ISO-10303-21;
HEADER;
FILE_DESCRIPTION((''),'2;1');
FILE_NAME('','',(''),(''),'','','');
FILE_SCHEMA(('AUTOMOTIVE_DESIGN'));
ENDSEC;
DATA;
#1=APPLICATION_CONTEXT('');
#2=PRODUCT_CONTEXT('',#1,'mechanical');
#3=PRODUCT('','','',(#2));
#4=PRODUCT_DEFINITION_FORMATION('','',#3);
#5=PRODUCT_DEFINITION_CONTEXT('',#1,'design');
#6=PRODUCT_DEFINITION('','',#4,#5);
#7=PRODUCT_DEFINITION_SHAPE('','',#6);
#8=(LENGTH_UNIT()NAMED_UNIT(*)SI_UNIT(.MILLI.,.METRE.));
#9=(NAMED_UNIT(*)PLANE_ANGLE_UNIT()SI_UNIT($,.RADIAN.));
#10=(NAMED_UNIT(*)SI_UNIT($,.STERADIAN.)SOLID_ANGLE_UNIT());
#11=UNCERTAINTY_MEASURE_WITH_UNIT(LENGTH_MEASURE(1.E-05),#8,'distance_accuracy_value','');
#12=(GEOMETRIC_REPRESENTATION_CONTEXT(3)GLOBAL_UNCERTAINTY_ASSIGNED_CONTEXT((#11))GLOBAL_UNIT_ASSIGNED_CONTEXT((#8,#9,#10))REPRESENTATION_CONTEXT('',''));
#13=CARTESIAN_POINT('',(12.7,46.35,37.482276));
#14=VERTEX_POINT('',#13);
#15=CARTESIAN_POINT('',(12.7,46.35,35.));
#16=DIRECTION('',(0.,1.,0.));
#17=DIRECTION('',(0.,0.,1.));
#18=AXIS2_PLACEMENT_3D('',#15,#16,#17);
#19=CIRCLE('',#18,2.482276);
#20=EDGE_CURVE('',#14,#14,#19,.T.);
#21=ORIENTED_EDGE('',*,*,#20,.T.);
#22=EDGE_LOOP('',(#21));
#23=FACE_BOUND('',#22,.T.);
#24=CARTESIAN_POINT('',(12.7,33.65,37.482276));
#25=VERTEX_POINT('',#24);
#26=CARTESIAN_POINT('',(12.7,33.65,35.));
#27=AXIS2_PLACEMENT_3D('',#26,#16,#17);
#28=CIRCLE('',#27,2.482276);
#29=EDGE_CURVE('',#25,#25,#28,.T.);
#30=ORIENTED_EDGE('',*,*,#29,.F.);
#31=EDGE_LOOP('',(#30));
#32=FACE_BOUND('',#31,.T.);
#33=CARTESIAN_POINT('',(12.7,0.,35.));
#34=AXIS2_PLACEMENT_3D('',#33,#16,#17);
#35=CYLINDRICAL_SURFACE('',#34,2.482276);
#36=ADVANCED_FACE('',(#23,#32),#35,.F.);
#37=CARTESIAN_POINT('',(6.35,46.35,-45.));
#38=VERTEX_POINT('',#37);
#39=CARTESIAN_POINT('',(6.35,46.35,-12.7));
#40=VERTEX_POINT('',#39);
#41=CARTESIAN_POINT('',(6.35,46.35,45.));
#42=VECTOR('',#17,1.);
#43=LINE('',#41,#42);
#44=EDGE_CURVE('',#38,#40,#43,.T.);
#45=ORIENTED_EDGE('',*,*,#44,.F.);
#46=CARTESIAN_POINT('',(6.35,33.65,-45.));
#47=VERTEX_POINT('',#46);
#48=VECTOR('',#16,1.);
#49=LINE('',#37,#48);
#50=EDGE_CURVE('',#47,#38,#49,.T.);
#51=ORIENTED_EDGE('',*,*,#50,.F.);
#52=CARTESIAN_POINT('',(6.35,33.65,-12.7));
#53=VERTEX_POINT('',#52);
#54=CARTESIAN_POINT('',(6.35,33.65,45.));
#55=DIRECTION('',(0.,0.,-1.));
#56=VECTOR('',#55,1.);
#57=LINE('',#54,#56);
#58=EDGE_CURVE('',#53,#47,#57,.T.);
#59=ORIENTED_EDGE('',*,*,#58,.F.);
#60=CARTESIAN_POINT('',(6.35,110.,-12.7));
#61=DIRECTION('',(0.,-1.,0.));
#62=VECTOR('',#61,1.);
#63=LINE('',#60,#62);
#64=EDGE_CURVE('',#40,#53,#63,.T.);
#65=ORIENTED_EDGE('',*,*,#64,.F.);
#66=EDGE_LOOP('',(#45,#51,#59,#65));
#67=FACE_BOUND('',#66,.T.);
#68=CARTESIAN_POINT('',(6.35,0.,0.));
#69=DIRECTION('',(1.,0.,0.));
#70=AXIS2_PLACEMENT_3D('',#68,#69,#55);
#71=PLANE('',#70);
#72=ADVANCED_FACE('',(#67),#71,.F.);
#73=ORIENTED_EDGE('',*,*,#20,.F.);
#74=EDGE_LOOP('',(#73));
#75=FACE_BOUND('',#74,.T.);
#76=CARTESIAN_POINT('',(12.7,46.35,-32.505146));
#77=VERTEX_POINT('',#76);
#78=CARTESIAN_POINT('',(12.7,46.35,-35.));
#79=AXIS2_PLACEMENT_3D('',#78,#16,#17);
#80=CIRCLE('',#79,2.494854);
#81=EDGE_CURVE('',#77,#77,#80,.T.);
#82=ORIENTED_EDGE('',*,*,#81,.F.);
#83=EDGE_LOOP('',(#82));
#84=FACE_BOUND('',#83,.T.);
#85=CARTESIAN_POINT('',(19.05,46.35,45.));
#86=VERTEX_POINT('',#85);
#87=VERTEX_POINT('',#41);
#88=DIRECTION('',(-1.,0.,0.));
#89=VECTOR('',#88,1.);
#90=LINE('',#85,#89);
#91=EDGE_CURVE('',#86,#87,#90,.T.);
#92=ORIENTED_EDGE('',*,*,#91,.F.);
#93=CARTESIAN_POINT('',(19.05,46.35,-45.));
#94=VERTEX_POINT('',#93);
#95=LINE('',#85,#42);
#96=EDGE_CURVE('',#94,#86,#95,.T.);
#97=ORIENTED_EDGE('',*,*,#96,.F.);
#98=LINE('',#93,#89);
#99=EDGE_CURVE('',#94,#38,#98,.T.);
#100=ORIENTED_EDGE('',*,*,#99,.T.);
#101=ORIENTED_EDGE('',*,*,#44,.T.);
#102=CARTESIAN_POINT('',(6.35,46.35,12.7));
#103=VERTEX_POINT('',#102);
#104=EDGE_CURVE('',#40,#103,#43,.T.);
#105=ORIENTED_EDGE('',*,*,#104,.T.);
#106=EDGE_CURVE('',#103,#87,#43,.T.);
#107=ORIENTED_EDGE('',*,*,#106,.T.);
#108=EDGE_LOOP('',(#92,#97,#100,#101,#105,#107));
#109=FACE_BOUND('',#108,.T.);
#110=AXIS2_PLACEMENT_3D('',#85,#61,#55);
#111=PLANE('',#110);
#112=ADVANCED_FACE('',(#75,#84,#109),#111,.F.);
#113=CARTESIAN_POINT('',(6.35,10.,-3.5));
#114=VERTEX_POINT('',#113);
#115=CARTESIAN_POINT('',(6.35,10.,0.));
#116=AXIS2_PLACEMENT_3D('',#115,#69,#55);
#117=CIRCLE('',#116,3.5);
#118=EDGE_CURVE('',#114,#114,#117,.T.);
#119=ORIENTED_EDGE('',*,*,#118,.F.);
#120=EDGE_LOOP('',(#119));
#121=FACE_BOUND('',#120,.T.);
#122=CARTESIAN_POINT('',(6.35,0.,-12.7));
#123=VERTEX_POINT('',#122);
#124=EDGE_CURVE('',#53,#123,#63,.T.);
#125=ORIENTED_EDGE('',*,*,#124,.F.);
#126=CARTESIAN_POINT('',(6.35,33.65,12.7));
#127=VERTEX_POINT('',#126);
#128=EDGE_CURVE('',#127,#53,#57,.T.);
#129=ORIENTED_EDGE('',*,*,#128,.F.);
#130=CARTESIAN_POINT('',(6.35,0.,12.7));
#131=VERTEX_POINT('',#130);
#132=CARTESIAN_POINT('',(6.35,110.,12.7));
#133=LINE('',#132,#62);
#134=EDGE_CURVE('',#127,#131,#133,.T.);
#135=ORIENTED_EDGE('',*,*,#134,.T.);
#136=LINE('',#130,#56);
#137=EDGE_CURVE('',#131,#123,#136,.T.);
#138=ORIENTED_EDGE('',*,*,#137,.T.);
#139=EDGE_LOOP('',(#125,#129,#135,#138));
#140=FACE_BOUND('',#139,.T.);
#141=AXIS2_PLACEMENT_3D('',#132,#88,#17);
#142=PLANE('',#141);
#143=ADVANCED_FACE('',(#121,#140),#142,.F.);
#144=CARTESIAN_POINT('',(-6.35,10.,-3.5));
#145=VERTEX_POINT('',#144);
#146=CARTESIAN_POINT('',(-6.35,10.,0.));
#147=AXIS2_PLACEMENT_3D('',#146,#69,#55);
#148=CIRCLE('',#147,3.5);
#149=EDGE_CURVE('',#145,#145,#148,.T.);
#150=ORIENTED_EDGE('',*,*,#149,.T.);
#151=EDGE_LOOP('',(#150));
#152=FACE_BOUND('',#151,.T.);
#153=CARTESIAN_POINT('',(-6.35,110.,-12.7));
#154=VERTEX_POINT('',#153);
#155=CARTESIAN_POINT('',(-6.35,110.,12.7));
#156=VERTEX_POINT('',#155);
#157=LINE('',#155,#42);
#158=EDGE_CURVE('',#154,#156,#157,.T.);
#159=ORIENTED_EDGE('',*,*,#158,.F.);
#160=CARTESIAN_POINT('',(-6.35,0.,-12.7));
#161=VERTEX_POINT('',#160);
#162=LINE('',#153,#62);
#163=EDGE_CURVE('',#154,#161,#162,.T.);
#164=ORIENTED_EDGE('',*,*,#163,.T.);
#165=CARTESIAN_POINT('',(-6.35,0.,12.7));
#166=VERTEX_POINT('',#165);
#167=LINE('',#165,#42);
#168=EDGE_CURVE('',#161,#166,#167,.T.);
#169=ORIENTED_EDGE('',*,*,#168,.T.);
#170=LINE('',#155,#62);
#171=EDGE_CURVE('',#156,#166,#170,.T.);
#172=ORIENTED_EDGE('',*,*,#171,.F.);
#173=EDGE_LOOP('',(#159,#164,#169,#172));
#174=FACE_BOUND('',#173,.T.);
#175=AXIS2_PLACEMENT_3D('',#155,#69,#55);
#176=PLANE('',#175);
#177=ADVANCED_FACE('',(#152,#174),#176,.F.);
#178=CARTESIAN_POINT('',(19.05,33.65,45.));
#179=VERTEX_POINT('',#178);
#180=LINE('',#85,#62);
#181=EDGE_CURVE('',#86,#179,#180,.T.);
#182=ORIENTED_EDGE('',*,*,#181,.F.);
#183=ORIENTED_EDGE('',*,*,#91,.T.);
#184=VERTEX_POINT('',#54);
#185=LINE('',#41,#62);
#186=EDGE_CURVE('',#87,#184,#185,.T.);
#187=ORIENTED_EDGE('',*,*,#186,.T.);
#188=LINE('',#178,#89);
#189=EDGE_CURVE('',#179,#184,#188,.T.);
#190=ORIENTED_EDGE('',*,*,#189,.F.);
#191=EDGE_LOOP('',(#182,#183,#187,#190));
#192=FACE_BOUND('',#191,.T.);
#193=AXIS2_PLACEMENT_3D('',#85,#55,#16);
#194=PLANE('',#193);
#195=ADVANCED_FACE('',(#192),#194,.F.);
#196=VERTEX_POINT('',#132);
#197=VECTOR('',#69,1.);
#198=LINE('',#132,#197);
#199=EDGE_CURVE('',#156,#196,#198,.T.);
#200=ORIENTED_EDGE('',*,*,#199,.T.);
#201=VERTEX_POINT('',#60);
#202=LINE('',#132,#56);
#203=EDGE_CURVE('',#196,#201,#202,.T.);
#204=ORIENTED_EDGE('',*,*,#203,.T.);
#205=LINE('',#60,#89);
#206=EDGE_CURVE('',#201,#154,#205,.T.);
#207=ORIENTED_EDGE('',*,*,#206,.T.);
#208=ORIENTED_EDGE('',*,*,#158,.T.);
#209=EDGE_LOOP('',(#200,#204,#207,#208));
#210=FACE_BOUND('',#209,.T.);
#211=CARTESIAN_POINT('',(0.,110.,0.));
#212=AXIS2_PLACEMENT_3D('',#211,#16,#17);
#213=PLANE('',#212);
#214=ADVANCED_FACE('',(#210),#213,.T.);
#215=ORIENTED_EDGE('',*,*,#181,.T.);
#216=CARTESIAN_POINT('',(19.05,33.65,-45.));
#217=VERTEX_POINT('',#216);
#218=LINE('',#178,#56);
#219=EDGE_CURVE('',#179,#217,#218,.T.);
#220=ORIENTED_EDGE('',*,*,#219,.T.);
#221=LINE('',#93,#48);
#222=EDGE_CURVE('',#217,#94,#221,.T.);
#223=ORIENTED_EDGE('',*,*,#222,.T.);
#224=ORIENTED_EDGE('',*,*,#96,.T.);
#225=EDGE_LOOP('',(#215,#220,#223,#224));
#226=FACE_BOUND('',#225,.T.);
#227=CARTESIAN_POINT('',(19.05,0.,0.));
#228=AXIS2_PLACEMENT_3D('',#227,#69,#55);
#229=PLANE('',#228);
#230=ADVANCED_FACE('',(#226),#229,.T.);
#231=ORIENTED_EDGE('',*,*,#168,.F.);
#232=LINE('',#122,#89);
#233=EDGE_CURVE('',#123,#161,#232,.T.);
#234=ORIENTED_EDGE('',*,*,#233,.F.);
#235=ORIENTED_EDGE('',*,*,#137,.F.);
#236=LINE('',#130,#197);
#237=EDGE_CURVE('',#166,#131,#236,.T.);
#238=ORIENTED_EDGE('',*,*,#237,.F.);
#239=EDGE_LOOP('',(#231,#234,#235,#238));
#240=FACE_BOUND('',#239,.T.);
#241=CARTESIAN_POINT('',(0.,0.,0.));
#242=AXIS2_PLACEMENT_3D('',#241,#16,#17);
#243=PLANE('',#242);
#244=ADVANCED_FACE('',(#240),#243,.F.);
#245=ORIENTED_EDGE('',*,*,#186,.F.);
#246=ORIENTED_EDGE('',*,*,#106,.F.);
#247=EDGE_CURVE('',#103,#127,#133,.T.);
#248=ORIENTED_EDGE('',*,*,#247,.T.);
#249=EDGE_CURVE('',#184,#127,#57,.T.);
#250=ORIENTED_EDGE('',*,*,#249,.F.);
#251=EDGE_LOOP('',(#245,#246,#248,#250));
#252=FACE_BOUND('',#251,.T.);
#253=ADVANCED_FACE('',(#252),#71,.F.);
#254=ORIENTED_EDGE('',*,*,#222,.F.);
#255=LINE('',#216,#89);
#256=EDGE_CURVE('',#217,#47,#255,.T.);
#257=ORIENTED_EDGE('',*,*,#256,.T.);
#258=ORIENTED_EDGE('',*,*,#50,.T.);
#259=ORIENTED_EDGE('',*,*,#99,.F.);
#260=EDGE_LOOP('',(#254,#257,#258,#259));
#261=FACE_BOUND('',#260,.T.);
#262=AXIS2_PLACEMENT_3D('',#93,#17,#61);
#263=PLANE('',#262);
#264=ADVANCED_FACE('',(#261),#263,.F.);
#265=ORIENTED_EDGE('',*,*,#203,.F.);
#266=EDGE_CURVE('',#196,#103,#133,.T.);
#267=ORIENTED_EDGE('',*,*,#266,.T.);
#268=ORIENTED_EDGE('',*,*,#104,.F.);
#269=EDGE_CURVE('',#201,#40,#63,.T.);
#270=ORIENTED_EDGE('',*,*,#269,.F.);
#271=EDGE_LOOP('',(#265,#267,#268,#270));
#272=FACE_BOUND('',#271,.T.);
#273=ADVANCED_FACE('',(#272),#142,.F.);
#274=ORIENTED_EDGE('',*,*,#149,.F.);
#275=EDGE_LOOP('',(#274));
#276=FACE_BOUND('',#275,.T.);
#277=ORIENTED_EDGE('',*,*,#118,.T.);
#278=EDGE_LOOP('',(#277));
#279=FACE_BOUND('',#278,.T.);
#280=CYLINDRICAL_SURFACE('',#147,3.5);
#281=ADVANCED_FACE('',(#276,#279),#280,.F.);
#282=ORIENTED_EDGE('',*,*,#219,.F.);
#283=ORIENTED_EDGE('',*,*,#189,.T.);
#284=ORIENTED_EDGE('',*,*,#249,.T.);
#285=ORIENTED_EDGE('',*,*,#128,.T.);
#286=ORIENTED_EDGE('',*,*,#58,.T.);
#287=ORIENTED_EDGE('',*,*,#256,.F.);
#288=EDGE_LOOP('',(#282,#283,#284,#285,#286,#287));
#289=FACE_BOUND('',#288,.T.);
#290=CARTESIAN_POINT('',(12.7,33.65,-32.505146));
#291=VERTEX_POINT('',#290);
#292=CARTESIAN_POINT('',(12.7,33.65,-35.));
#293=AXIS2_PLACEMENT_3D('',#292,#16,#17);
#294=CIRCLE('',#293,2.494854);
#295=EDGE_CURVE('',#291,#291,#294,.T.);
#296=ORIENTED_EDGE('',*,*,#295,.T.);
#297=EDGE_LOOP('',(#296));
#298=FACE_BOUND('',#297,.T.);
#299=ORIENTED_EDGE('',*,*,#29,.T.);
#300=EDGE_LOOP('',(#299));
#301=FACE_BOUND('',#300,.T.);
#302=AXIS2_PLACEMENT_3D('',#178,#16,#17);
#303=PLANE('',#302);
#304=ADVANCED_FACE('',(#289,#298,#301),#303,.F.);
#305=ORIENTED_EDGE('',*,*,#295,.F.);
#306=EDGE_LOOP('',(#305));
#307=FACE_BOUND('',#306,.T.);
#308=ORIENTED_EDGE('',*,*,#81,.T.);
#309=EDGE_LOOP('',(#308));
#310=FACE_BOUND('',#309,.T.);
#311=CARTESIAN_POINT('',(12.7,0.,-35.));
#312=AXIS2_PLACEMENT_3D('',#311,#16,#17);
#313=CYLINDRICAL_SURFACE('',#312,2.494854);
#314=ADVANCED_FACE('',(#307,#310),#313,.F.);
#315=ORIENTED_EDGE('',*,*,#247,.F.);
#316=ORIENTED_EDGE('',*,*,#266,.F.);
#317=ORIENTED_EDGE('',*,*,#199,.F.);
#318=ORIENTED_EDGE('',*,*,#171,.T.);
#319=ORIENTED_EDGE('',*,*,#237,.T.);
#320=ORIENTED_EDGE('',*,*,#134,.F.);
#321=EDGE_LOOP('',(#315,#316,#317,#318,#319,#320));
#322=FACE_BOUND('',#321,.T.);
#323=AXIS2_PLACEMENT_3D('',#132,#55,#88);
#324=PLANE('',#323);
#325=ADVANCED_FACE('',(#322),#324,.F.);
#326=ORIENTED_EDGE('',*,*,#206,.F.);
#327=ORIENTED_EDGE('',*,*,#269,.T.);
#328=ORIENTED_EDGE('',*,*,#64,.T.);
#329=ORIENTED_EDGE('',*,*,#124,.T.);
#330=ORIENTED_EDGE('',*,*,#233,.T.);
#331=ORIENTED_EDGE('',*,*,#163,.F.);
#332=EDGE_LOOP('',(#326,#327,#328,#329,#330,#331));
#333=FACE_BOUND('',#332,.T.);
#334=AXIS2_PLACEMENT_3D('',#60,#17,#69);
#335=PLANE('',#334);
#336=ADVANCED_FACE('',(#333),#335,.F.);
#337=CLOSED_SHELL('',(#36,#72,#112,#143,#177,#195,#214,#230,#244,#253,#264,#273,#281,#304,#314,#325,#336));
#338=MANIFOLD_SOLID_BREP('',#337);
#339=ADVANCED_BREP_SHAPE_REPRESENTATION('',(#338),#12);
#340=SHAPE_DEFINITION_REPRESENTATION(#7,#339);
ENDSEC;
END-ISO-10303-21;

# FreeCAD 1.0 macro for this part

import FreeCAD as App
import Part
import Sketcher


def add_polygon(sketch, points):
    """Adds a closed chain of lines whose ends are joined by coincident constraints."""
    first, n = sketch.GeometryCount, len(points)
    for a, b in zip(points, points[1:] + points[:1]):
        sketch.addGeometry(Part.LineSegment(App.Vector(*a, 0), App.Vector(*b, 0)), False)
    for i in range(n):
        sketch.addConstraint(Sketcher.Constraint("Coincident", first + i, 2, first + (i + 1) % n, 1))

doc = App.newDocument("Part")
body = doc.addObject("PartDesign::Body", "Body")

# Sketch on XZ plane
sketch1 = doc.addObject("Sketcher::SketchObject", "Sketch")
body.addObject(sketch1)
sketch1.AttachmentSupport = (doc.XZ_Plane, [""])
sketch1.MapMode = "FlatFace"
add_polygon(sketch1, [(-6, -13), (-6, 13), (6, 13), (6, -13)])  # lines 0-3
sketch1.addConstraint([
    Sketcher.Constraint("Vertical", 0),
    Sketcher.Constraint("Horizontal", 1),
    Sketcher.Constraint("Vertical", 2),
    Sketcher.Constraint("Horizontal", 3),
    Sketcher.Constraint("Symmetric", 0, 2, 2, 2, -1, 1),
    Sketcher.Constraint("DistanceX", 1, 1, 1, 2, 12.7),
    Sketcher.Constraint("DistanceY", 0, 1, 0, 2, 25.4),
])
pad1 = doc.addObject("PartDesign::Pad", "Pad")
body.addObject(pad1)
pad1.Profile = sketch1
pad1.Length = 110
pad1.Reversed = True

# Sketch on YZ plane
sketch2 = doc.addObject("Sketcher::SketchObject", "Sketch001")
body.addObject(sketch2)
sketch2.AttachmentSupport = (doc.YZ_Plane, [""])
sketch2.MapMode = "FlatFace"
sketch2.AttachmentOffset = App.Placement(App.Vector(0, 0, 6.35), App.Rotation())
add_polygon(sketch2, [(46, 45), (34, 45), (34, -45), (46, -45)])  # lines 0-3
sketch2.addConstraint([
    Sketcher.Constraint("Horizontal", 0),
    Sketcher.Constraint("Vertical", 1),
    Sketcher.Constraint("Horizontal", 2),
    Sketcher.Constraint("Vertical", 3),
    Sketcher.Constraint("DistanceY", 1, 2, 1, 1, 90.0),
    Sketcher.Constraint("DistanceX", 0, 2, 0, 1, 12.7),
    Sketcher.Constraint("DistanceY", -1, 1, 0, 2, 45.0),
    Sketcher.Constraint("DistanceX", -1, 1, 0, 2, 33.65),
])
pad2 = doc.addObject("PartDesign::Pad", "Pad001")
body.addObject(pad2)
pad2.Profile = sketch2
pad2.Length = 12.7

# Sketch on YZ plane
sketch3 = doc.addObject("Sketcher::SketchObject", "Sketch002")
body.addObject(sketch3)
sketch3.AttachmentSupport = (doc.YZ_Plane, [""])
sketch3.MapMode = "FlatFace"
sketch3.AttachmentOffset = App.Placement(App.Vector(0, 0, 6.35), App.Rotation())
sketch3.addGeometry(Part.Circle(App.Vector(10, 0, 0), App.Vector(0, 0, 1), 3.5), False)
sketch3.addConstraint([
    Sketcher.Constraint("PointOnObject", 0, 3, -1),
    Sketcher.Constraint("Diameter", 0, 7.0),
    Sketcher.Constraint("DistanceX", -1, 1, 0, 3, 10.0),
])
pocket1 = doc.addObject("PartDesign::Pocket", "Pocket")
body.addObject(pocket1)
pocket1.Profile = sketch3
pocket1.Type = "ThroughAll"

# Sketch on XZ plane
sketch4 = doc.addObject("Sketcher::SketchObject", "Sketch003")
body.addObject(sketch4)
sketch4.AttachmentSupport = (doc.XZ_Plane, [""])
sketch4.MapMode = "FlatFace"
sketch4.AttachmentOffset = App.Placement(App.Vector(0, 0, -46.35), App.Rotation())
sketch4.addGeometry([
    Part.Circle(App.Vector(12.7, -35, 0), App.Vector(0, 0, 1), 2.5),
    Part.Circle(App.Vector(12.7, 35, 0), App.Vector(0, 0, 1), 2.5),
], False)
sketch4.addConstraint([
    Sketcher.Constraint("Symmetric", 0, 3, 1, 3, -1),
    Sketcher.Constraint("DistanceY", 0, 3, -1, 1, 35.0),
    Sketcher.Constraint("DistanceX", -1, 1, 0, 3, 12.7),
    Sketcher.Constraint("Diameter", 0, 4.989707),
    Sketcher.Constraint("Diameter", 1, 4.964552),
])
pocket2 = doc.addObject("PartDesign::Pocket", "Pocket001")
body.addObject(pocket2)
pocket2.Profile = sketch4
pocket2.Type = "ThroughAll"
pocket2.Reversed = True

doc.recompute()
